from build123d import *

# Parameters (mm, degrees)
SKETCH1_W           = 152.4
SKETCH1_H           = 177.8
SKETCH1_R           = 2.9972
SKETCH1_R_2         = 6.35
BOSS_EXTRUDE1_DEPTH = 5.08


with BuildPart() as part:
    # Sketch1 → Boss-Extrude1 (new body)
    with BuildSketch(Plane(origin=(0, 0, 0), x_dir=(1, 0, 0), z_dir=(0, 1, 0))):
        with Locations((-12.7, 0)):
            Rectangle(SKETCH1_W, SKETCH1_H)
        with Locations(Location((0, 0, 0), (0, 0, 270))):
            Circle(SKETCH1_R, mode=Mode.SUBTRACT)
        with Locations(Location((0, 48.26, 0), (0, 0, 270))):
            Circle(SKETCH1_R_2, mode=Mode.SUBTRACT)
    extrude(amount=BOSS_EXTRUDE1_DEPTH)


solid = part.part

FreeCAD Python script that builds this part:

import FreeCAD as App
import Part
import Sketcher
Q = App.Units.Quantity

doc = App.newDocument("Part")
body = doc.addObject("PartDesign::Body", "Body")

sketch1 = doc.addObject("Sketcher::SketchObject", "Sketch")
body.addObject(sketch1)
sketch1.AttachmentSupport = (doc.XZ_Plane, [""])
sketch1.MapMode = "FlatFace"
sketch1.addGeometry(Part.LineSegment(App.Vector(-88.9, -88.9, 0), App.Vector(-88.9, 88.9, 0)), False)
sketch1.addGeometry(Part.LineSegment(App.Vector(-88.9, 88.9, 0), App.Vector(63.5, 88.9, 0)), False)
sketch1.addGeometry(Part.LineSegment(App.Vector(63.5, 88.9, 0), App.Vector(63.5, -88.9, 0)), False)
sketch1.addGeometry(Part.LineSegment(App.Vector(63.5, -88.9, 0), App.Vector(-88.9, -88.9, 0)), False)
sketch1.addGeometry(Part.Circle(App.Vector(0, 0, 0), App.Vector(0, 0, 1), 3), False)
sketch1.addGeometry(Part.Circle(App.Vector(0, -48.3, 0), App.Vector(0, 0, 1), 6.3), False)
sketch1.addConstraint(Sketcher.Constraint("Coincident", 0, 2, 1, 1))
sketch1.addConstraint(Sketcher.Constraint("Coincident", 1, 2, 2, 1))
sketch1.addConstraint(Sketcher.Constraint("Coincident", 2, 2, 3, 1))
sketch1.addConstraint(Sketcher.Constraint("Coincident", 3, 2, 0, 1))
sketch1.addConstraint(Sketcher.Constraint("Vertical", 0))
sketch1.addConstraint(Sketcher.Constraint("Horizontal", 1))
sketch1.addConstraint(Sketcher.Constraint("Vertical", 2))
sketch1.addConstraint(Sketcher.Constraint("Horizontal", 3))
sketch1.addConstraint(Sketcher.Constraint("Coincident", 4, 3, -1, 1))
sketch1.addConstraint(Sketcher.Constraint("PointOnObject", 5, 3, -2))
sketch1.addConstraint(Sketcher.Constraint("Diameter", 5, Q("0.5 in")))
sketch1.addConstraint(Sketcher.Constraint("DistanceX", 1, 1, 1, 2, Q("6 in")))
sketch1.addConstraint(Sketcher.Constraint("DistanceY", 0, 1, 0, 2, Q("7 in")))
sketch1.addConstraint(Sketcher.Constraint("Diameter", 4, Q("0.236 in")))
sketch1.addConstraint(Sketcher.Constraint("DistanceY", 5, 3, -1, 1, Q("1.9 in")))
sketch1.addConstraint(Sketcher.Constraint("DistanceX", 0, 2, -1, 1, Q("3.5 in")))
sketch1.addConstraint(Sketcher.Constraint("DistanceY", -1, 1, 0, 2, Q("3.5 in")))
pad1 = doc.addObject("PartDesign::Pad", "Pad")
body.addObject(pad1)
pad1.Profile = sketch1
pad1.Length = Q("0.2 in")
pad1.Reversed = True

doc.recompute()
